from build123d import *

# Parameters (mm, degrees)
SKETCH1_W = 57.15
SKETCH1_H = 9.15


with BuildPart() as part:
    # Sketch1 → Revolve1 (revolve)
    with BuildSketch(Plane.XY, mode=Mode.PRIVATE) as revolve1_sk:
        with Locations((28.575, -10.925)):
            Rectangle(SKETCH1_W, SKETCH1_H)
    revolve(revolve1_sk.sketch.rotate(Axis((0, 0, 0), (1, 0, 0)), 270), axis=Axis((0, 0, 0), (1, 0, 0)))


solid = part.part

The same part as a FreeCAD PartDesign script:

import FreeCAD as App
import Part
import Sketcher
Q = App.Units.Quantity


def add_polygon(sketch, points):
    """Adds a closed chain of lines whose ends are joined by coincident constraints."""
    first, n = sketch.GeometryCount, len(points)
    for a, b in zip(points, points[1:] + points[:1]):
        sketch.addGeometry(Part.LineSegment(App.Vector(*a, 0), App.Vector(*b, 0)), False)
    for i in range(n):
        sketch.addConstraint(Sketcher.Constraint("Coincident", first + i, 2, first + (i + 1) % n, 1))

doc = App.newDocument("Part")
params = doc.addObject("Spreadsheet::Sheet", "Params")
for row, (alias, value) in enumerate([
    ("sketch1_width", "2.25 in"),
    ("revolution_angle", "360 deg"),
], start=1):
    params.set(f"A{row}", alias)
    params.set(f"B{row}", "=" + value)
    params.setAlias(f"B{row}", alias)

body = doc.addObject("PartDesign::Body", "Body")

# Sketch on XY plane
sketch1 = doc.addObject("Sketcher::SketchObject", "Sketch")
body.addObject(sketch1)
sketch1.AttachmentSupport = (doc.XY_Plane, [""])
sketch1.MapMode = "FlatFace"
add_polygon(sketch1, [(0, -6), (0, -16), (57, -16), (57, -6)])  # lines 0-3
sketch1.addConstraint([
    Sketcher.Constraint("Vertical", 0),
    Sketcher.Constraint("Horizontal", 1),
    Sketcher.Constraint("Vertical", 2),
    Sketcher.Constraint("Horizontal", 3),
    Sketcher.Constraint("PointOnObject", 0, 2, -2),
    Sketcher.Constraint("DistanceX", 1, 1, 1, 2, Q("2.25 in")),
    Sketcher.Constraint("DistanceY", 2, 2, -1, 1, Q("0.25 in")),
    Sketcher.Constraint("DistanceY", 0, 2, 0, 1, 9.15),
])
sketch1.setExpression("Constraints[9]", "Params.sketch1_width")
revolution = doc.addObject("PartDesign::Revolution", "Revolution")
body.addObject(revolution)
revolution.Profile = sketch1
revolution.ReferenceAxis = (sketch1, ["H_Axis"])
revolution.setExpression("Angle", "Params.revolution_angle")

doc.recompute()
